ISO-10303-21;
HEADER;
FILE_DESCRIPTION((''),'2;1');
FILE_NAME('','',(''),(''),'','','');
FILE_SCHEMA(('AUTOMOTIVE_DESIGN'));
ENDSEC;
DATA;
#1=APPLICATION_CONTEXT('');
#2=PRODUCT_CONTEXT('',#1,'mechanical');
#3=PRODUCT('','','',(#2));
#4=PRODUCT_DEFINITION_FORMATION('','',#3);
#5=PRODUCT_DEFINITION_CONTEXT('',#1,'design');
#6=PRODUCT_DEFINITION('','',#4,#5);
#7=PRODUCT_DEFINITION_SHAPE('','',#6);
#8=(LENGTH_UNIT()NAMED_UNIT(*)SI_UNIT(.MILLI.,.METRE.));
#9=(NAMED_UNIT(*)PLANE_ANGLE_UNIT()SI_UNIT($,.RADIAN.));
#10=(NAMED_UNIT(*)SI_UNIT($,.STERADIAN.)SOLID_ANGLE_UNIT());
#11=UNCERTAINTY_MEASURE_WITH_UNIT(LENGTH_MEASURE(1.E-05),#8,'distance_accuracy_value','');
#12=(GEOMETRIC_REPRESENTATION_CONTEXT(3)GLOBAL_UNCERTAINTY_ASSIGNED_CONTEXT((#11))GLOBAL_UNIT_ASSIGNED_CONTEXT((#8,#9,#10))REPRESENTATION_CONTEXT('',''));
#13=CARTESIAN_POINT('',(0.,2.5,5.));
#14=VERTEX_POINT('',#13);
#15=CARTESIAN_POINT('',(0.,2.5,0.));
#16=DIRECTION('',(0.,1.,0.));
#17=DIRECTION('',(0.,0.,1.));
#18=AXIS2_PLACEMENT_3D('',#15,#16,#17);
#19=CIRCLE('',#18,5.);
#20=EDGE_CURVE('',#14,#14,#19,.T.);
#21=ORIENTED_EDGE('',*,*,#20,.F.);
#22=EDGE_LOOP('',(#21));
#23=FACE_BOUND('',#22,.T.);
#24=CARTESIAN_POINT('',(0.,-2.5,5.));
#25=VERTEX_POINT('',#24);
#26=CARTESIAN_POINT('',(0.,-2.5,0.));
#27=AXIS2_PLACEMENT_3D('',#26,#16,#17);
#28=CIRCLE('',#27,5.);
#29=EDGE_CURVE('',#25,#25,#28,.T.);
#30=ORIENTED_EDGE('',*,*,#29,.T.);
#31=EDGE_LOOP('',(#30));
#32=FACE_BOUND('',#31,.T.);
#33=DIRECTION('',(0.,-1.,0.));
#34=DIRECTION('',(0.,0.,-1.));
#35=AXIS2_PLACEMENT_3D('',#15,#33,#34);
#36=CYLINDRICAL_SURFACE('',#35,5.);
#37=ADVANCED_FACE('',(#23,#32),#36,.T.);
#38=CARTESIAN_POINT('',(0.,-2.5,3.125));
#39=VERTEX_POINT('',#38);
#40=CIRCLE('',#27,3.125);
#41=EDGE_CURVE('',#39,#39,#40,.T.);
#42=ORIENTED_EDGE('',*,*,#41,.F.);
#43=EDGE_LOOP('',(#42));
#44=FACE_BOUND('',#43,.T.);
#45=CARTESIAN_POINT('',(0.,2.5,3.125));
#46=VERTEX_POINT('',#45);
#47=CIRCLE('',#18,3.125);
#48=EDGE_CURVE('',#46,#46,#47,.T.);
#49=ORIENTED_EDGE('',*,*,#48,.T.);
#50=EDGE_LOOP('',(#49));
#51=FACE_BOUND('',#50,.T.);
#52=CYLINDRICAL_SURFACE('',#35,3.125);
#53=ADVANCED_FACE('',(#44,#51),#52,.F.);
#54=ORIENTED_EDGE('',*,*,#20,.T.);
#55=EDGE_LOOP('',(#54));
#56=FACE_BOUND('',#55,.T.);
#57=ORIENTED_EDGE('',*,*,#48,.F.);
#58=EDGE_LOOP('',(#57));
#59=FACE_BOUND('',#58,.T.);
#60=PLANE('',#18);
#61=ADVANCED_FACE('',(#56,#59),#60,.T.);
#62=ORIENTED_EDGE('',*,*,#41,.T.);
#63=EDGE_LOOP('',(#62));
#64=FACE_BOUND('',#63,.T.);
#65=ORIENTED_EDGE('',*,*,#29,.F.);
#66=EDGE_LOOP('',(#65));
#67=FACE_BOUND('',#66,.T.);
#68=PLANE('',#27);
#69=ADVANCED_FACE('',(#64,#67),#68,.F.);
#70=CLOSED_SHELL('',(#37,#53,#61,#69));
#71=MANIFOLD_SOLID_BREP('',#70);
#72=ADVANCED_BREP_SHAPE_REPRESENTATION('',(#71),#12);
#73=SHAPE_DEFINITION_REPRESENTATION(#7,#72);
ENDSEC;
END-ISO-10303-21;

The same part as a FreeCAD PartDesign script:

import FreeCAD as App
import Part
import Sketcher

doc = App.newDocument("Part")
params = doc.addObject("Spreadsheet::Sheet", "Params")
for row, (alias, value) in enumerate([
    ("sketch1_diameter", "10 mm"),
    ("sketch1_diameter2", "6.25 mm"),
    ("pad1_length", "5 mm"),
], start=1):
    params.set(f"A{row}", alias)
    params.set(f"B{row}", "=" + value)
    params.setAlias(f"B{row}", alias)

body = doc.addObject("PartDesign::Body", "Body")

sketch1 = body.newObject("Sketcher::SketchObject", "Sketch")
sketch1.AttachmentSupport = (doc.getObject("XZ_Plane"), [""])
sketch1.MapMode = "FlatFace"
sketch1.addGeometry([
    Part.Circle(App.Vector(0, 0, 0), App.Vector(0, 0, 1), 5),
    Part.Circle(App.Vector(0, 0, 0), App.Vector(0, 0, 1), 3.125),
], False)
sketch1.addConstraint([
    Sketcher.Constraint("Coincident", 0, 3, -1, 1),
    Sketcher.Constraint("Coincident", 1, 3, -1, 1),
    Sketcher.Constraint("Diameter", 0, 10.0),
    Sketcher.Constraint("Diameter", 1, 6.25),
])
sketch1.setExpression("Constraints[2]", "Params.sketch1_diameter")
sketch1.setExpression("Constraints[3]", "Params.sketch1_diameter2")
pad1 = body.newObject("PartDesign::Pad", "Pad")
pad1.Profile = sketch1
pad1.setExpression("Length", "Params.pad1_length")
pad1.Midplane = True

doc.recompute()
